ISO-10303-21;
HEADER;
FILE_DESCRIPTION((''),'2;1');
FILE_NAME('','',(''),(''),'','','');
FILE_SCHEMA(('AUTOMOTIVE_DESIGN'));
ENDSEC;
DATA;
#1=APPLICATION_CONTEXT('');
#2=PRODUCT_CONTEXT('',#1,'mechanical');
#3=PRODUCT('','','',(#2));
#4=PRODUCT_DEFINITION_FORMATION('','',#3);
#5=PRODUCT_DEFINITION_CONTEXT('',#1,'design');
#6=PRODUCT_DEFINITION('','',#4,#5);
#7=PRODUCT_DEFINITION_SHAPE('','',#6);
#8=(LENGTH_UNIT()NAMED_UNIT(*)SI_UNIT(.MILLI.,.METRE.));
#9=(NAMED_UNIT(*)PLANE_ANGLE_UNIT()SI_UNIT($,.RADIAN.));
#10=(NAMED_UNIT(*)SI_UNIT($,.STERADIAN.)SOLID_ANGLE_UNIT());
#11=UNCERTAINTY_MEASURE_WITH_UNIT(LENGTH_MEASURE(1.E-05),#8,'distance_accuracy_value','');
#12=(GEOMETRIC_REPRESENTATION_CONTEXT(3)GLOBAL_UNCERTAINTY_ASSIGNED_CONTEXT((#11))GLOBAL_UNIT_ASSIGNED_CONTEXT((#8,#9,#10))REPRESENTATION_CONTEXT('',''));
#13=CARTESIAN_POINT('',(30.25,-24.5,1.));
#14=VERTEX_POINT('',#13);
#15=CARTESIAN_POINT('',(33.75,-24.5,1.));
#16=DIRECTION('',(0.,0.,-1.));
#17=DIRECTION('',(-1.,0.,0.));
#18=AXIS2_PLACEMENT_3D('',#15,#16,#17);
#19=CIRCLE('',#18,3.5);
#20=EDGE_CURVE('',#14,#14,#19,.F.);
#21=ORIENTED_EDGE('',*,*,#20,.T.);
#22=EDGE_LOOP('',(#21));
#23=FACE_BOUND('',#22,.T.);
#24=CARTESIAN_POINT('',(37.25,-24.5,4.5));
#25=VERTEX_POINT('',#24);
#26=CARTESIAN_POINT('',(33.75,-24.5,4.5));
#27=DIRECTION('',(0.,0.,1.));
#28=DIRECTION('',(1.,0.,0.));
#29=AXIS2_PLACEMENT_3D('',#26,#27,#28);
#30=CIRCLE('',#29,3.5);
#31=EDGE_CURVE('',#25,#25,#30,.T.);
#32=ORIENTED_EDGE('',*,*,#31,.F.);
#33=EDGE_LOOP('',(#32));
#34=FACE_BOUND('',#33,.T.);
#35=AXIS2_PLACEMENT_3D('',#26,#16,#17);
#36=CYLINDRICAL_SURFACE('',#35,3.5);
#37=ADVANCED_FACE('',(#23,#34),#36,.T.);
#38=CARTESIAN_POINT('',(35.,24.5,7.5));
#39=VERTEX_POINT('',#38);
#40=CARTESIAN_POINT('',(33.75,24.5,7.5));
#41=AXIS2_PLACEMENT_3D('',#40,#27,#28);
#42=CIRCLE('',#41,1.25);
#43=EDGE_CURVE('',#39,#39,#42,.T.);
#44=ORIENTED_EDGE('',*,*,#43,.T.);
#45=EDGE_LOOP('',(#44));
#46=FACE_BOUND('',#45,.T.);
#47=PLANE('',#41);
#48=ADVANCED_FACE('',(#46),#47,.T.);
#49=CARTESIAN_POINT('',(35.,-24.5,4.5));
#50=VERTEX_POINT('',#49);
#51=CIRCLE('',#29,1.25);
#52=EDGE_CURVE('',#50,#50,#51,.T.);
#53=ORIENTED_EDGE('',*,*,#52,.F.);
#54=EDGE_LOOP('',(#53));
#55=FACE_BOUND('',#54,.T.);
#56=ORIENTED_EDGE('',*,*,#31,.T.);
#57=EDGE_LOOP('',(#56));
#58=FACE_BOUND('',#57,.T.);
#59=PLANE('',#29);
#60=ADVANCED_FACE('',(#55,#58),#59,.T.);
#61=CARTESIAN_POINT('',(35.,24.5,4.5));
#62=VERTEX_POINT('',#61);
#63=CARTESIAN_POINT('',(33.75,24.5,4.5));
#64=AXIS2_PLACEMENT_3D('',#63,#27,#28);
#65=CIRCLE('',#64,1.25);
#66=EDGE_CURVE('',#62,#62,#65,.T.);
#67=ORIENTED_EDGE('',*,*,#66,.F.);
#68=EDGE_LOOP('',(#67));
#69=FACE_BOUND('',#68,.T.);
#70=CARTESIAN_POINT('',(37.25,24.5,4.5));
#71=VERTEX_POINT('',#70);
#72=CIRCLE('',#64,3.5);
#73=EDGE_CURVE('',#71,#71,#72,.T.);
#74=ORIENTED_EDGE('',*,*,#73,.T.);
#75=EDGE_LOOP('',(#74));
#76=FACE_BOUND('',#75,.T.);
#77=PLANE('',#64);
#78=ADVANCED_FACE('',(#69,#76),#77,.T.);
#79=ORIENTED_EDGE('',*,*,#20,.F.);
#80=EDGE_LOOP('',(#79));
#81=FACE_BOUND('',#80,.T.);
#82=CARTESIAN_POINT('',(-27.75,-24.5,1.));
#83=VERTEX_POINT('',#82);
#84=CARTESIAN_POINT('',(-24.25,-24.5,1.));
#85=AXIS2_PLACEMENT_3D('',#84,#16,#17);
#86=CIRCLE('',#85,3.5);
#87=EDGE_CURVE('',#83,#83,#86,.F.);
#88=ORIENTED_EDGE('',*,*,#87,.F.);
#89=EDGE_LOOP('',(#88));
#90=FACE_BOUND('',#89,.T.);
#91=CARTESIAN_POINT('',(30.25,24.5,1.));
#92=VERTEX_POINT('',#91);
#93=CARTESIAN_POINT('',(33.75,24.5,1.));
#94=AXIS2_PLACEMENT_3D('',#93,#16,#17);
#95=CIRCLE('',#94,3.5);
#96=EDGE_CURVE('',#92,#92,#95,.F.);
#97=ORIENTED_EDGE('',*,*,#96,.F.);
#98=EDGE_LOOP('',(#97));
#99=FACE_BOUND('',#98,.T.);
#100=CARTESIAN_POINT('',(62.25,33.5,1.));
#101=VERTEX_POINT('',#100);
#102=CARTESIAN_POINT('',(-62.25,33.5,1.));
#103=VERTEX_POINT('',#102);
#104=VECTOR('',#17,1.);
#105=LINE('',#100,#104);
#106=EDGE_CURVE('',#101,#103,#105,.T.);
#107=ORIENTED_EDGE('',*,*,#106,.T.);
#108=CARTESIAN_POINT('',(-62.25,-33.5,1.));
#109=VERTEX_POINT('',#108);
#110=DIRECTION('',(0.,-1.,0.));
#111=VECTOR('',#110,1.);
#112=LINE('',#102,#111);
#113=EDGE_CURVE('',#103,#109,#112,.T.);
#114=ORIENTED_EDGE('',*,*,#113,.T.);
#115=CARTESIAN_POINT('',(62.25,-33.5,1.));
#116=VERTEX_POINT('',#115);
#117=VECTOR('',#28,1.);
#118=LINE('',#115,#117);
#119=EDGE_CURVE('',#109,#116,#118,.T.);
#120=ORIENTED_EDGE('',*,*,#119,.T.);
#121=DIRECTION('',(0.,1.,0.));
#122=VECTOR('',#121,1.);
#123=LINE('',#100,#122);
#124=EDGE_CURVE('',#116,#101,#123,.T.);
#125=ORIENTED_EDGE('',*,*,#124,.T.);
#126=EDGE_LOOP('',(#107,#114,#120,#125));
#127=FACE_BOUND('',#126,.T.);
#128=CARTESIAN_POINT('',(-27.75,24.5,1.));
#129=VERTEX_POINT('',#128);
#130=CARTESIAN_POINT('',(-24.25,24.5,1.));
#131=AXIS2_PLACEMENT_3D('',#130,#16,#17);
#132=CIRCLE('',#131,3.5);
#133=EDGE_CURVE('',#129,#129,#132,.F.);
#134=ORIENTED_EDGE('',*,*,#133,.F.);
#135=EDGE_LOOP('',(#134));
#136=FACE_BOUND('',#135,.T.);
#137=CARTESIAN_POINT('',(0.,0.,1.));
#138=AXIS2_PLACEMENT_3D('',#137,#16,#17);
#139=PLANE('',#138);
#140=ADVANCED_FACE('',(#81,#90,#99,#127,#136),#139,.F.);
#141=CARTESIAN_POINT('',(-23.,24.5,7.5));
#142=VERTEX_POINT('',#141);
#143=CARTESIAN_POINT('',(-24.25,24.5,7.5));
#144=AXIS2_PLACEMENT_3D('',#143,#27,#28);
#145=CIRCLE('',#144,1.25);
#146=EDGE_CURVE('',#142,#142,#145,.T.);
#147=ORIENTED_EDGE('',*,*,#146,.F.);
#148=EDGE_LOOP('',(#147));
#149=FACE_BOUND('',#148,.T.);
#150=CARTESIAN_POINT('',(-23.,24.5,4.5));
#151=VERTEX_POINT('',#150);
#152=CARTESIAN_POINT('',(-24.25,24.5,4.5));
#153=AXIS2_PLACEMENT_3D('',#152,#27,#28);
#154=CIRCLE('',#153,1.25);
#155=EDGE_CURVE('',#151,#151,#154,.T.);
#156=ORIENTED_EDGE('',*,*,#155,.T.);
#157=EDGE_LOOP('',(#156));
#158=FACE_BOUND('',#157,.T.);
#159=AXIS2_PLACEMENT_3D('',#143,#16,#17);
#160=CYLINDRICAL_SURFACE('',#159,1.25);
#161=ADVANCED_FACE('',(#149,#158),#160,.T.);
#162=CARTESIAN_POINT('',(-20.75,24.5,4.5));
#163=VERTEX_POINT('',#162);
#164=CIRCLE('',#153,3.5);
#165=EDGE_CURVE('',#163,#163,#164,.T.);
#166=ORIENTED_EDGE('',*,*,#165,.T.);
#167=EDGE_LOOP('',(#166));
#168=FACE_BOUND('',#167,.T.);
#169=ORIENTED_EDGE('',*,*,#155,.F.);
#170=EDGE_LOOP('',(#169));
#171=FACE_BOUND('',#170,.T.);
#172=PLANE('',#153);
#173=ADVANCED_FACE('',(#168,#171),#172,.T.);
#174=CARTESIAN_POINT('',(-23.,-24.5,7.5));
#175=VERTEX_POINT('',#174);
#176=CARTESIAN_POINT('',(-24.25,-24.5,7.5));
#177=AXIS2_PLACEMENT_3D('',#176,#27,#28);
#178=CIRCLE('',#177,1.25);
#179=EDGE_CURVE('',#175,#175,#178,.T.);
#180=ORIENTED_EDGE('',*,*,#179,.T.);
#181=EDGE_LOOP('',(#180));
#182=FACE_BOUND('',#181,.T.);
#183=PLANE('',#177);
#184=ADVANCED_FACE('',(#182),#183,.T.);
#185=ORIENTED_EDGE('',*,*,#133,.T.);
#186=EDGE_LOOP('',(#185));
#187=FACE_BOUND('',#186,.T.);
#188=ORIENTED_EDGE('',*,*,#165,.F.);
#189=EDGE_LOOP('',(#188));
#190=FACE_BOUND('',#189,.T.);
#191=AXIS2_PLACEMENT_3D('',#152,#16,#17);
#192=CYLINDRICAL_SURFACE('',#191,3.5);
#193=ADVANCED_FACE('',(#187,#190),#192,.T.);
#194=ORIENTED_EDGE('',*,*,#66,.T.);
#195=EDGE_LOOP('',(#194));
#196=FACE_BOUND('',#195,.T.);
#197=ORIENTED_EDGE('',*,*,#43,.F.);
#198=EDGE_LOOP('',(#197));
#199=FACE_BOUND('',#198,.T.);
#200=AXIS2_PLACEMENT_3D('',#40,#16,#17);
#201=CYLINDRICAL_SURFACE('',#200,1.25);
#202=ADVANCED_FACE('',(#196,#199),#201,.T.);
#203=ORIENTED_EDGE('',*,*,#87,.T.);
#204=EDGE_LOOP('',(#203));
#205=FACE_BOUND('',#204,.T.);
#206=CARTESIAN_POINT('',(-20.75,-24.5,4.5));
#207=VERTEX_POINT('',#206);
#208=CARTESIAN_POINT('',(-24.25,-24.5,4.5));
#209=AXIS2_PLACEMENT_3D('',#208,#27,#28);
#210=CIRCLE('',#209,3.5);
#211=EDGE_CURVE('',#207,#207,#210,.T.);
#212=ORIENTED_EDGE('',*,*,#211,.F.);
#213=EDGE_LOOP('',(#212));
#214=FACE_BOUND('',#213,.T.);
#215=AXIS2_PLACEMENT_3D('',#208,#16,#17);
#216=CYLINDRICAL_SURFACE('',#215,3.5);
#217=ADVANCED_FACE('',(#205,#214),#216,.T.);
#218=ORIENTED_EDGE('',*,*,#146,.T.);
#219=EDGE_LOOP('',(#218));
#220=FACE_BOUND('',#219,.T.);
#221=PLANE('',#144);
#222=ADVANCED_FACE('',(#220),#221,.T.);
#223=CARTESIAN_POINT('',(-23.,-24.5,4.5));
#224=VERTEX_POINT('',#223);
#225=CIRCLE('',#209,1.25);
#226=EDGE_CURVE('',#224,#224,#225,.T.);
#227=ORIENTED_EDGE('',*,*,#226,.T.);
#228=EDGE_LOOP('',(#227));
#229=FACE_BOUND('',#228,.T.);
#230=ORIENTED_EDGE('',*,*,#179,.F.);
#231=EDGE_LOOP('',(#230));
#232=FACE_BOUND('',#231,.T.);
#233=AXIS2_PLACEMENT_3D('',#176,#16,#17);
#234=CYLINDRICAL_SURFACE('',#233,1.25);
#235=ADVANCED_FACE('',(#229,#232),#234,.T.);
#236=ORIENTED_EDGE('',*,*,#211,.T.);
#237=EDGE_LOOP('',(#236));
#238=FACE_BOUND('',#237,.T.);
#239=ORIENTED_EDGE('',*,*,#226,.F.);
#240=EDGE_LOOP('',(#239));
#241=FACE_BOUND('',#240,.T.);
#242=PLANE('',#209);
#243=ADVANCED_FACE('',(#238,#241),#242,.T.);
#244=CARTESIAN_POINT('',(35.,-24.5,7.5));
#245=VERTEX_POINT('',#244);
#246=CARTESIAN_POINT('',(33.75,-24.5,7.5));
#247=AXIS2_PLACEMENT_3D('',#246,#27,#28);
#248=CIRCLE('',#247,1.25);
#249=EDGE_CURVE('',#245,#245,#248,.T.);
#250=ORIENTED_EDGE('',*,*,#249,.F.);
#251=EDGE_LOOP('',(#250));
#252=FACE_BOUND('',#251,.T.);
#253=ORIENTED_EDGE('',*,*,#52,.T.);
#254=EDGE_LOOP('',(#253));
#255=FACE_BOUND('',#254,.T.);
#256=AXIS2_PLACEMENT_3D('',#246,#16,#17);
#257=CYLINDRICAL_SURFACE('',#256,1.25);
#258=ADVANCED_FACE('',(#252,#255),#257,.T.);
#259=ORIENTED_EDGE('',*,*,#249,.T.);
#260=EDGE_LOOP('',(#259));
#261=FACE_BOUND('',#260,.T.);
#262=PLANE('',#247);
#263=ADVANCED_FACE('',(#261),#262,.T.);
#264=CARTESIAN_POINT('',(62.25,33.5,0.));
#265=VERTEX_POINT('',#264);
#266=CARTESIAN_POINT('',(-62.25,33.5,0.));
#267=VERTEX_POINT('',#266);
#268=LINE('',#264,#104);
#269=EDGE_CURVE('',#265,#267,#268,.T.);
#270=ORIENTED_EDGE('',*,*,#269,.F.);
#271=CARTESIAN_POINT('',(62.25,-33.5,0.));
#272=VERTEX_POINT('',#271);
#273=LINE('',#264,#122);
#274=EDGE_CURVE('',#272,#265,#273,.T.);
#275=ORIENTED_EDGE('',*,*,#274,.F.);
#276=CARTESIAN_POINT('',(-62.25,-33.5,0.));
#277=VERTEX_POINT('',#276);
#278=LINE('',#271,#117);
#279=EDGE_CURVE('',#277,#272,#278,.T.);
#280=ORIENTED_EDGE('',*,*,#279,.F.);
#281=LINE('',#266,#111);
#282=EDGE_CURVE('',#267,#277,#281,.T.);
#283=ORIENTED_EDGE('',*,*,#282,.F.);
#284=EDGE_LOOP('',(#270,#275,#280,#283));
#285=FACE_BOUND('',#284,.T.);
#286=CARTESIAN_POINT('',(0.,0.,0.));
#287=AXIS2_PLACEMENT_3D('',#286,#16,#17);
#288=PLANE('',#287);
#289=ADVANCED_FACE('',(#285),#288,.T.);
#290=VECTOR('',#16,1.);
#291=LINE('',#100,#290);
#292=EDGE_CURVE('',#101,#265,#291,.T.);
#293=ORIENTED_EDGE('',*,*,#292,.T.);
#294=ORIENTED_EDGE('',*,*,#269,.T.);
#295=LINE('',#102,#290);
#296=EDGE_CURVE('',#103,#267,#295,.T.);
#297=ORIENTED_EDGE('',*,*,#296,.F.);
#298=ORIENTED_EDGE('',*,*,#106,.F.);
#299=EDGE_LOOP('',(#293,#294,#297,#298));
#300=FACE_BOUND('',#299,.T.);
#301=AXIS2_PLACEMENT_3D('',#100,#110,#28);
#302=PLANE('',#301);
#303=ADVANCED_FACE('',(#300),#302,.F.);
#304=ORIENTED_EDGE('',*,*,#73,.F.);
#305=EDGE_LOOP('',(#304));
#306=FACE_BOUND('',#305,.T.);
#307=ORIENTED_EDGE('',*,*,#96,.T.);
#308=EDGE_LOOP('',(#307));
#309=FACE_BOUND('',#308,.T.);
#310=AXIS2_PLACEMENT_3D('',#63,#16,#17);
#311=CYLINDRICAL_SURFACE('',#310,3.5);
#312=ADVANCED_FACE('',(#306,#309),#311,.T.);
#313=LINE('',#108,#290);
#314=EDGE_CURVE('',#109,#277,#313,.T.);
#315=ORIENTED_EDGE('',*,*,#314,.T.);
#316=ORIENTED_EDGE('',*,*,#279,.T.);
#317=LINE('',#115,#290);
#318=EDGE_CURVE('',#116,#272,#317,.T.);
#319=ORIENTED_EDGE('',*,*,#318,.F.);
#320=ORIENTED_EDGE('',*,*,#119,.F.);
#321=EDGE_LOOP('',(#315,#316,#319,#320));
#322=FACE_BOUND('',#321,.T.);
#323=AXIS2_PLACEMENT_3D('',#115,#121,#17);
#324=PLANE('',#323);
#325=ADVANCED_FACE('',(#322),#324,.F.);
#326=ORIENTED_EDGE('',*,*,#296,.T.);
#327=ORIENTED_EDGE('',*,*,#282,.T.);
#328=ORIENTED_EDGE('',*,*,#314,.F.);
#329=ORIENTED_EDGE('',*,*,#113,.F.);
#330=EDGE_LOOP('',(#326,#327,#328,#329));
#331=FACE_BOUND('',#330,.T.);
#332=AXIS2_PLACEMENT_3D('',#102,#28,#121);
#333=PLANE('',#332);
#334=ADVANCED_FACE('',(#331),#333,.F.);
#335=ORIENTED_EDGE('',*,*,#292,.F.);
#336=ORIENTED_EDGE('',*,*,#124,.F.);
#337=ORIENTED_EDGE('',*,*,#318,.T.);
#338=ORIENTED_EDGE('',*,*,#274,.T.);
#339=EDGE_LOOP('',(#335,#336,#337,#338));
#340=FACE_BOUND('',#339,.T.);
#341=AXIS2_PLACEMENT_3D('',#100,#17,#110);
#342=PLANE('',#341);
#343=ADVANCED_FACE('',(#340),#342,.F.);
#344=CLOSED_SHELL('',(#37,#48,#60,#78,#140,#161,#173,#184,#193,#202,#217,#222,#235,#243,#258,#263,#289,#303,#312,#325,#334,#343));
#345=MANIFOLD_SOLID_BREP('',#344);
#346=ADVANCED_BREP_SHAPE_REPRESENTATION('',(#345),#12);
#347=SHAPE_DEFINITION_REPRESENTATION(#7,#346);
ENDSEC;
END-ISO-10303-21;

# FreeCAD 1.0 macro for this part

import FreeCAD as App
import Part
import Sketcher

doc = App.newDocument("Part")
body = doc.addObject("PartDesign::Body", "Body")

# Sketch on XY plane
sketch1 = doc.addObject("Sketcher::SketchObject", "Sketch")
body.addObject(sketch1)
sketch1.AttachmentSupport = (doc.XY_Plane, [""])
sketch1.MapMode = "FlatFace"
sketch1.addGeometry(Part.LineSegment(App.Vector(-62, 34, 0), App.Vector(-62, -34, 0)), False)
sketch1.addGeometry(Part.LineSegment(App.Vector(-62, -34, 0), App.Vector(62, -34, 0)), False)
sketch1.addGeometry(Part.LineSegment(App.Vector(62, -34, 0), App.Vector(62, 34, 0)), False)
sketch1.addGeometry(Part.LineSegment(App.Vector(62, 34, 0), App.Vector(-62, 34, 0)), False)
sketch1.addConstraint(Sketcher.Constraint("Coincident", 0, 2, 1, 1))
sketch1.addConstraint(Sketcher.Constraint("Coincident", 1, 2, 2, 1))
sketch1.addConstraint(Sketcher.Constraint("Coincident", 2, 2, 3, 1))
sketch1.addConstraint(Sketcher.Constraint("Coincident", 3, 2, 0, 1))
sketch1.addConstraint(Sketcher.Constraint("Vertical", 0))
sketch1.addConstraint(Sketcher.Constraint("Horizontal", 1))
sketch1.addConstraint(Sketcher.Constraint("Vertical", 2))
sketch1.addConstraint(Sketcher.Constraint("Horizontal", 3))
sketch1.addConstraint(Sketcher.Constraint("Symmetric", 0, 2, 2, 2, -1, 1))
sketch1.addConstraint(Sketcher.Constraint("DistanceY", 0, 2, 0, 1, 67.0))
sketch1.addConstraint(Sketcher.Constraint("DistanceX", 1, 1, 1, 2, 124.5))
pad1 = doc.addObject("PartDesign::Pad", "Pad")
body.addObject(pad1)
pad1.Profile = sketch1
pad1.Length = 1

# Sketch on XY plane
sketch2 = doc.addObject("Sketcher::SketchObject", "Sketch001")
body.addObject(sketch2)
sketch2.AttachmentSupport = (doc.XY_Plane, [""])
sketch2.MapMode = "FlatFace"
sketch2.AttachmentOffset = App.Placement(App.Vector(0, 0, 1), App.Rotation())
sketch2.addGeometry(Part.Circle(App.Vector(-24.2, 24.5, 0), App.Vector(0, 0, 1), 3.5), False)
sketch2.addGeometry(Part.Circle(App.Vector(33.8, 24.5, 0), App.Vector(0, 0, 1), 3.5), False)
sketch2.addGeometry(Part.Circle(App.Vector(33.8, -24.5, 0), App.Vector(0, 0, 1), 3.5), False)
sketch2.addGeometry(Part.Circle(App.Vector(-24.2, -24.5, 0), App.Vector(0, 0, 1), 3.5), False)
sketch2.addConstraint(Sketcher.Constraint("Equal", 0, 1))
sketch2.addConstraint(Sketcher.Constraint("Equal", 1, 2))
sketch2.addConstraint(Sketcher.Constraint("Equal", 2, 3))
sketch2.addConstraint(Sketcher.Constraint("Symmetric", 1, 3, 2, 3, -1))
sketch2.addConstraint(Sketcher.Constraint("Symmetric", 0, 3, 3, 3, -1))
sketch2.addConstraint(Sketcher.Constraint("Horizontal", 0, 3, 1, 3))
sketch2.addConstraint(Sketcher.Constraint("Diameter", 0, 7.0))
sketch2.addConstraint(Sketcher.Constraint("DistanceX", 0, 3, 1, 3, 58.0))
sketch2.addConstraint(Sketcher.Constraint("DistanceY", 2, 3, 1, 3, 49.0))
sketch2.addConstraint(Sketcher.Constraint("DistanceX", 0, 3, -1, 1, 24.25))
pad2 = doc.addObject("PartDesign::Pad", "Pad001")
body.addObject(pad2)
pad2.Profile = sketch2
pad2.Length = 3.5

# Sketch on XY plane
sketch3 = doc.addObject("Sketcher::SketchObject", "Sketch002")
body.addObject(sketch3)
sketch3.AttachmentSupport = (doc.XY_Plane, [""])
sketch3.MapMode = "FlatFace"
sketch3.AttachmentOffset = App.Placement(App.Vector(0, 0, 4.5), App.Rotation())
sketch3.addGeometry(Part.Circle(App.Vector(-24.2, 24.5, 0), App.Vector(0, 0, 1), 1.2), False)
sketch3.addGeometry(Part.Circle(App.Vector(33.8, 24.5, 0), App.Vector(0, 0, 1), 1.2), False)
sketch3.addGeometry(Part.Circle(App.Vector(33.8, -24.5, 0), App.Vector(0, 0, 1), 1.2), False)
sketch3.addGeometry(Part.Circle(App.Vector(-24.2, -24.5, 0), App.Vector(0, 0, 1), 1.2), False)
sketch3.addConstraint(Sketcher.Constraint("Equal", 0, 1))
sketch3.addConstraint(Sketcher.Constraint("Equal", 1, 2))
sketch3.addConstraint(Sketcher.Constraint("Equal", 2, 3))
sketch3.addConstraint(Sketcher.Constraint("Symmetric", 1, 3, 2, 3, -1))
sketch3.addConstraint(Sketcher.Constraint("Symmetric", 0, 3, 3, 3, -1))
sketch3.addConstraint(Sketcher.Constraint("Horizontal", 0, 3, 1, 3))
sketch3.addConstraint(Sketcher.Constraint("Diameter", 0, 2.5))
sketch3.addConstraint(Sketcher.Constraint("DistanceX", 0, 3, 1, 3, 58.0))
sketch3.addConstraint(Sketcher.Constraint("DistanceY", 2, 3, 1, 3, 49.0))
sketch3.addConstraint(Sketcher.Constraint("DistanceX", 0, 3, -1, 1, 24.25))
pad3 = doc.addObject("PartDesign::Pad", "Pad002")
body.addObject(pad3)
pad3.Profile = sketch3
pad3.Length = 3

doc.recompute()
